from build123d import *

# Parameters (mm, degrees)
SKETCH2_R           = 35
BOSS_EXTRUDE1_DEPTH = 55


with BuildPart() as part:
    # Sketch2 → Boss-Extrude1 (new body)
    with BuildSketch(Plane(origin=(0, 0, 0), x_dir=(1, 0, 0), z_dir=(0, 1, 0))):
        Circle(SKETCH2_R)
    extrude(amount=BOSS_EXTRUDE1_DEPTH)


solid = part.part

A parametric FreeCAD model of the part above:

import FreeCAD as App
import Part
import Sketcher
from FreeCAD import Vector
Q = App.Units.Quantity

doc = App.newDocument("Part")
body = doc.addObject("PartDesign::Body", "Body")

sketch1 = body.newObject("Sketcher::SketchObject", "Sketch")
sketch1.AttachmentSupport = (doc.getObject("XZ_Plane"), [""])
sketch1.MapMode = "FlatFace"
sketch1.addGeometry(Part.Circle(Vector(0, 0, 0), Vector(0, 0, 1), 35), False)
sketch1.addConstraint(Sketcher.Constraint("Coincident", 0, 3, -1, 1))
sketch1.addConstraint(Sketcher.Constraint("Diameter", 0, Q("70 mm")))
pad1 = body.newObject("PartDesign::Pad", "Pad")
pad1.Profile = sketch1
pad1.Length = 55
pad1.Reversed = True

doc.recompute()
